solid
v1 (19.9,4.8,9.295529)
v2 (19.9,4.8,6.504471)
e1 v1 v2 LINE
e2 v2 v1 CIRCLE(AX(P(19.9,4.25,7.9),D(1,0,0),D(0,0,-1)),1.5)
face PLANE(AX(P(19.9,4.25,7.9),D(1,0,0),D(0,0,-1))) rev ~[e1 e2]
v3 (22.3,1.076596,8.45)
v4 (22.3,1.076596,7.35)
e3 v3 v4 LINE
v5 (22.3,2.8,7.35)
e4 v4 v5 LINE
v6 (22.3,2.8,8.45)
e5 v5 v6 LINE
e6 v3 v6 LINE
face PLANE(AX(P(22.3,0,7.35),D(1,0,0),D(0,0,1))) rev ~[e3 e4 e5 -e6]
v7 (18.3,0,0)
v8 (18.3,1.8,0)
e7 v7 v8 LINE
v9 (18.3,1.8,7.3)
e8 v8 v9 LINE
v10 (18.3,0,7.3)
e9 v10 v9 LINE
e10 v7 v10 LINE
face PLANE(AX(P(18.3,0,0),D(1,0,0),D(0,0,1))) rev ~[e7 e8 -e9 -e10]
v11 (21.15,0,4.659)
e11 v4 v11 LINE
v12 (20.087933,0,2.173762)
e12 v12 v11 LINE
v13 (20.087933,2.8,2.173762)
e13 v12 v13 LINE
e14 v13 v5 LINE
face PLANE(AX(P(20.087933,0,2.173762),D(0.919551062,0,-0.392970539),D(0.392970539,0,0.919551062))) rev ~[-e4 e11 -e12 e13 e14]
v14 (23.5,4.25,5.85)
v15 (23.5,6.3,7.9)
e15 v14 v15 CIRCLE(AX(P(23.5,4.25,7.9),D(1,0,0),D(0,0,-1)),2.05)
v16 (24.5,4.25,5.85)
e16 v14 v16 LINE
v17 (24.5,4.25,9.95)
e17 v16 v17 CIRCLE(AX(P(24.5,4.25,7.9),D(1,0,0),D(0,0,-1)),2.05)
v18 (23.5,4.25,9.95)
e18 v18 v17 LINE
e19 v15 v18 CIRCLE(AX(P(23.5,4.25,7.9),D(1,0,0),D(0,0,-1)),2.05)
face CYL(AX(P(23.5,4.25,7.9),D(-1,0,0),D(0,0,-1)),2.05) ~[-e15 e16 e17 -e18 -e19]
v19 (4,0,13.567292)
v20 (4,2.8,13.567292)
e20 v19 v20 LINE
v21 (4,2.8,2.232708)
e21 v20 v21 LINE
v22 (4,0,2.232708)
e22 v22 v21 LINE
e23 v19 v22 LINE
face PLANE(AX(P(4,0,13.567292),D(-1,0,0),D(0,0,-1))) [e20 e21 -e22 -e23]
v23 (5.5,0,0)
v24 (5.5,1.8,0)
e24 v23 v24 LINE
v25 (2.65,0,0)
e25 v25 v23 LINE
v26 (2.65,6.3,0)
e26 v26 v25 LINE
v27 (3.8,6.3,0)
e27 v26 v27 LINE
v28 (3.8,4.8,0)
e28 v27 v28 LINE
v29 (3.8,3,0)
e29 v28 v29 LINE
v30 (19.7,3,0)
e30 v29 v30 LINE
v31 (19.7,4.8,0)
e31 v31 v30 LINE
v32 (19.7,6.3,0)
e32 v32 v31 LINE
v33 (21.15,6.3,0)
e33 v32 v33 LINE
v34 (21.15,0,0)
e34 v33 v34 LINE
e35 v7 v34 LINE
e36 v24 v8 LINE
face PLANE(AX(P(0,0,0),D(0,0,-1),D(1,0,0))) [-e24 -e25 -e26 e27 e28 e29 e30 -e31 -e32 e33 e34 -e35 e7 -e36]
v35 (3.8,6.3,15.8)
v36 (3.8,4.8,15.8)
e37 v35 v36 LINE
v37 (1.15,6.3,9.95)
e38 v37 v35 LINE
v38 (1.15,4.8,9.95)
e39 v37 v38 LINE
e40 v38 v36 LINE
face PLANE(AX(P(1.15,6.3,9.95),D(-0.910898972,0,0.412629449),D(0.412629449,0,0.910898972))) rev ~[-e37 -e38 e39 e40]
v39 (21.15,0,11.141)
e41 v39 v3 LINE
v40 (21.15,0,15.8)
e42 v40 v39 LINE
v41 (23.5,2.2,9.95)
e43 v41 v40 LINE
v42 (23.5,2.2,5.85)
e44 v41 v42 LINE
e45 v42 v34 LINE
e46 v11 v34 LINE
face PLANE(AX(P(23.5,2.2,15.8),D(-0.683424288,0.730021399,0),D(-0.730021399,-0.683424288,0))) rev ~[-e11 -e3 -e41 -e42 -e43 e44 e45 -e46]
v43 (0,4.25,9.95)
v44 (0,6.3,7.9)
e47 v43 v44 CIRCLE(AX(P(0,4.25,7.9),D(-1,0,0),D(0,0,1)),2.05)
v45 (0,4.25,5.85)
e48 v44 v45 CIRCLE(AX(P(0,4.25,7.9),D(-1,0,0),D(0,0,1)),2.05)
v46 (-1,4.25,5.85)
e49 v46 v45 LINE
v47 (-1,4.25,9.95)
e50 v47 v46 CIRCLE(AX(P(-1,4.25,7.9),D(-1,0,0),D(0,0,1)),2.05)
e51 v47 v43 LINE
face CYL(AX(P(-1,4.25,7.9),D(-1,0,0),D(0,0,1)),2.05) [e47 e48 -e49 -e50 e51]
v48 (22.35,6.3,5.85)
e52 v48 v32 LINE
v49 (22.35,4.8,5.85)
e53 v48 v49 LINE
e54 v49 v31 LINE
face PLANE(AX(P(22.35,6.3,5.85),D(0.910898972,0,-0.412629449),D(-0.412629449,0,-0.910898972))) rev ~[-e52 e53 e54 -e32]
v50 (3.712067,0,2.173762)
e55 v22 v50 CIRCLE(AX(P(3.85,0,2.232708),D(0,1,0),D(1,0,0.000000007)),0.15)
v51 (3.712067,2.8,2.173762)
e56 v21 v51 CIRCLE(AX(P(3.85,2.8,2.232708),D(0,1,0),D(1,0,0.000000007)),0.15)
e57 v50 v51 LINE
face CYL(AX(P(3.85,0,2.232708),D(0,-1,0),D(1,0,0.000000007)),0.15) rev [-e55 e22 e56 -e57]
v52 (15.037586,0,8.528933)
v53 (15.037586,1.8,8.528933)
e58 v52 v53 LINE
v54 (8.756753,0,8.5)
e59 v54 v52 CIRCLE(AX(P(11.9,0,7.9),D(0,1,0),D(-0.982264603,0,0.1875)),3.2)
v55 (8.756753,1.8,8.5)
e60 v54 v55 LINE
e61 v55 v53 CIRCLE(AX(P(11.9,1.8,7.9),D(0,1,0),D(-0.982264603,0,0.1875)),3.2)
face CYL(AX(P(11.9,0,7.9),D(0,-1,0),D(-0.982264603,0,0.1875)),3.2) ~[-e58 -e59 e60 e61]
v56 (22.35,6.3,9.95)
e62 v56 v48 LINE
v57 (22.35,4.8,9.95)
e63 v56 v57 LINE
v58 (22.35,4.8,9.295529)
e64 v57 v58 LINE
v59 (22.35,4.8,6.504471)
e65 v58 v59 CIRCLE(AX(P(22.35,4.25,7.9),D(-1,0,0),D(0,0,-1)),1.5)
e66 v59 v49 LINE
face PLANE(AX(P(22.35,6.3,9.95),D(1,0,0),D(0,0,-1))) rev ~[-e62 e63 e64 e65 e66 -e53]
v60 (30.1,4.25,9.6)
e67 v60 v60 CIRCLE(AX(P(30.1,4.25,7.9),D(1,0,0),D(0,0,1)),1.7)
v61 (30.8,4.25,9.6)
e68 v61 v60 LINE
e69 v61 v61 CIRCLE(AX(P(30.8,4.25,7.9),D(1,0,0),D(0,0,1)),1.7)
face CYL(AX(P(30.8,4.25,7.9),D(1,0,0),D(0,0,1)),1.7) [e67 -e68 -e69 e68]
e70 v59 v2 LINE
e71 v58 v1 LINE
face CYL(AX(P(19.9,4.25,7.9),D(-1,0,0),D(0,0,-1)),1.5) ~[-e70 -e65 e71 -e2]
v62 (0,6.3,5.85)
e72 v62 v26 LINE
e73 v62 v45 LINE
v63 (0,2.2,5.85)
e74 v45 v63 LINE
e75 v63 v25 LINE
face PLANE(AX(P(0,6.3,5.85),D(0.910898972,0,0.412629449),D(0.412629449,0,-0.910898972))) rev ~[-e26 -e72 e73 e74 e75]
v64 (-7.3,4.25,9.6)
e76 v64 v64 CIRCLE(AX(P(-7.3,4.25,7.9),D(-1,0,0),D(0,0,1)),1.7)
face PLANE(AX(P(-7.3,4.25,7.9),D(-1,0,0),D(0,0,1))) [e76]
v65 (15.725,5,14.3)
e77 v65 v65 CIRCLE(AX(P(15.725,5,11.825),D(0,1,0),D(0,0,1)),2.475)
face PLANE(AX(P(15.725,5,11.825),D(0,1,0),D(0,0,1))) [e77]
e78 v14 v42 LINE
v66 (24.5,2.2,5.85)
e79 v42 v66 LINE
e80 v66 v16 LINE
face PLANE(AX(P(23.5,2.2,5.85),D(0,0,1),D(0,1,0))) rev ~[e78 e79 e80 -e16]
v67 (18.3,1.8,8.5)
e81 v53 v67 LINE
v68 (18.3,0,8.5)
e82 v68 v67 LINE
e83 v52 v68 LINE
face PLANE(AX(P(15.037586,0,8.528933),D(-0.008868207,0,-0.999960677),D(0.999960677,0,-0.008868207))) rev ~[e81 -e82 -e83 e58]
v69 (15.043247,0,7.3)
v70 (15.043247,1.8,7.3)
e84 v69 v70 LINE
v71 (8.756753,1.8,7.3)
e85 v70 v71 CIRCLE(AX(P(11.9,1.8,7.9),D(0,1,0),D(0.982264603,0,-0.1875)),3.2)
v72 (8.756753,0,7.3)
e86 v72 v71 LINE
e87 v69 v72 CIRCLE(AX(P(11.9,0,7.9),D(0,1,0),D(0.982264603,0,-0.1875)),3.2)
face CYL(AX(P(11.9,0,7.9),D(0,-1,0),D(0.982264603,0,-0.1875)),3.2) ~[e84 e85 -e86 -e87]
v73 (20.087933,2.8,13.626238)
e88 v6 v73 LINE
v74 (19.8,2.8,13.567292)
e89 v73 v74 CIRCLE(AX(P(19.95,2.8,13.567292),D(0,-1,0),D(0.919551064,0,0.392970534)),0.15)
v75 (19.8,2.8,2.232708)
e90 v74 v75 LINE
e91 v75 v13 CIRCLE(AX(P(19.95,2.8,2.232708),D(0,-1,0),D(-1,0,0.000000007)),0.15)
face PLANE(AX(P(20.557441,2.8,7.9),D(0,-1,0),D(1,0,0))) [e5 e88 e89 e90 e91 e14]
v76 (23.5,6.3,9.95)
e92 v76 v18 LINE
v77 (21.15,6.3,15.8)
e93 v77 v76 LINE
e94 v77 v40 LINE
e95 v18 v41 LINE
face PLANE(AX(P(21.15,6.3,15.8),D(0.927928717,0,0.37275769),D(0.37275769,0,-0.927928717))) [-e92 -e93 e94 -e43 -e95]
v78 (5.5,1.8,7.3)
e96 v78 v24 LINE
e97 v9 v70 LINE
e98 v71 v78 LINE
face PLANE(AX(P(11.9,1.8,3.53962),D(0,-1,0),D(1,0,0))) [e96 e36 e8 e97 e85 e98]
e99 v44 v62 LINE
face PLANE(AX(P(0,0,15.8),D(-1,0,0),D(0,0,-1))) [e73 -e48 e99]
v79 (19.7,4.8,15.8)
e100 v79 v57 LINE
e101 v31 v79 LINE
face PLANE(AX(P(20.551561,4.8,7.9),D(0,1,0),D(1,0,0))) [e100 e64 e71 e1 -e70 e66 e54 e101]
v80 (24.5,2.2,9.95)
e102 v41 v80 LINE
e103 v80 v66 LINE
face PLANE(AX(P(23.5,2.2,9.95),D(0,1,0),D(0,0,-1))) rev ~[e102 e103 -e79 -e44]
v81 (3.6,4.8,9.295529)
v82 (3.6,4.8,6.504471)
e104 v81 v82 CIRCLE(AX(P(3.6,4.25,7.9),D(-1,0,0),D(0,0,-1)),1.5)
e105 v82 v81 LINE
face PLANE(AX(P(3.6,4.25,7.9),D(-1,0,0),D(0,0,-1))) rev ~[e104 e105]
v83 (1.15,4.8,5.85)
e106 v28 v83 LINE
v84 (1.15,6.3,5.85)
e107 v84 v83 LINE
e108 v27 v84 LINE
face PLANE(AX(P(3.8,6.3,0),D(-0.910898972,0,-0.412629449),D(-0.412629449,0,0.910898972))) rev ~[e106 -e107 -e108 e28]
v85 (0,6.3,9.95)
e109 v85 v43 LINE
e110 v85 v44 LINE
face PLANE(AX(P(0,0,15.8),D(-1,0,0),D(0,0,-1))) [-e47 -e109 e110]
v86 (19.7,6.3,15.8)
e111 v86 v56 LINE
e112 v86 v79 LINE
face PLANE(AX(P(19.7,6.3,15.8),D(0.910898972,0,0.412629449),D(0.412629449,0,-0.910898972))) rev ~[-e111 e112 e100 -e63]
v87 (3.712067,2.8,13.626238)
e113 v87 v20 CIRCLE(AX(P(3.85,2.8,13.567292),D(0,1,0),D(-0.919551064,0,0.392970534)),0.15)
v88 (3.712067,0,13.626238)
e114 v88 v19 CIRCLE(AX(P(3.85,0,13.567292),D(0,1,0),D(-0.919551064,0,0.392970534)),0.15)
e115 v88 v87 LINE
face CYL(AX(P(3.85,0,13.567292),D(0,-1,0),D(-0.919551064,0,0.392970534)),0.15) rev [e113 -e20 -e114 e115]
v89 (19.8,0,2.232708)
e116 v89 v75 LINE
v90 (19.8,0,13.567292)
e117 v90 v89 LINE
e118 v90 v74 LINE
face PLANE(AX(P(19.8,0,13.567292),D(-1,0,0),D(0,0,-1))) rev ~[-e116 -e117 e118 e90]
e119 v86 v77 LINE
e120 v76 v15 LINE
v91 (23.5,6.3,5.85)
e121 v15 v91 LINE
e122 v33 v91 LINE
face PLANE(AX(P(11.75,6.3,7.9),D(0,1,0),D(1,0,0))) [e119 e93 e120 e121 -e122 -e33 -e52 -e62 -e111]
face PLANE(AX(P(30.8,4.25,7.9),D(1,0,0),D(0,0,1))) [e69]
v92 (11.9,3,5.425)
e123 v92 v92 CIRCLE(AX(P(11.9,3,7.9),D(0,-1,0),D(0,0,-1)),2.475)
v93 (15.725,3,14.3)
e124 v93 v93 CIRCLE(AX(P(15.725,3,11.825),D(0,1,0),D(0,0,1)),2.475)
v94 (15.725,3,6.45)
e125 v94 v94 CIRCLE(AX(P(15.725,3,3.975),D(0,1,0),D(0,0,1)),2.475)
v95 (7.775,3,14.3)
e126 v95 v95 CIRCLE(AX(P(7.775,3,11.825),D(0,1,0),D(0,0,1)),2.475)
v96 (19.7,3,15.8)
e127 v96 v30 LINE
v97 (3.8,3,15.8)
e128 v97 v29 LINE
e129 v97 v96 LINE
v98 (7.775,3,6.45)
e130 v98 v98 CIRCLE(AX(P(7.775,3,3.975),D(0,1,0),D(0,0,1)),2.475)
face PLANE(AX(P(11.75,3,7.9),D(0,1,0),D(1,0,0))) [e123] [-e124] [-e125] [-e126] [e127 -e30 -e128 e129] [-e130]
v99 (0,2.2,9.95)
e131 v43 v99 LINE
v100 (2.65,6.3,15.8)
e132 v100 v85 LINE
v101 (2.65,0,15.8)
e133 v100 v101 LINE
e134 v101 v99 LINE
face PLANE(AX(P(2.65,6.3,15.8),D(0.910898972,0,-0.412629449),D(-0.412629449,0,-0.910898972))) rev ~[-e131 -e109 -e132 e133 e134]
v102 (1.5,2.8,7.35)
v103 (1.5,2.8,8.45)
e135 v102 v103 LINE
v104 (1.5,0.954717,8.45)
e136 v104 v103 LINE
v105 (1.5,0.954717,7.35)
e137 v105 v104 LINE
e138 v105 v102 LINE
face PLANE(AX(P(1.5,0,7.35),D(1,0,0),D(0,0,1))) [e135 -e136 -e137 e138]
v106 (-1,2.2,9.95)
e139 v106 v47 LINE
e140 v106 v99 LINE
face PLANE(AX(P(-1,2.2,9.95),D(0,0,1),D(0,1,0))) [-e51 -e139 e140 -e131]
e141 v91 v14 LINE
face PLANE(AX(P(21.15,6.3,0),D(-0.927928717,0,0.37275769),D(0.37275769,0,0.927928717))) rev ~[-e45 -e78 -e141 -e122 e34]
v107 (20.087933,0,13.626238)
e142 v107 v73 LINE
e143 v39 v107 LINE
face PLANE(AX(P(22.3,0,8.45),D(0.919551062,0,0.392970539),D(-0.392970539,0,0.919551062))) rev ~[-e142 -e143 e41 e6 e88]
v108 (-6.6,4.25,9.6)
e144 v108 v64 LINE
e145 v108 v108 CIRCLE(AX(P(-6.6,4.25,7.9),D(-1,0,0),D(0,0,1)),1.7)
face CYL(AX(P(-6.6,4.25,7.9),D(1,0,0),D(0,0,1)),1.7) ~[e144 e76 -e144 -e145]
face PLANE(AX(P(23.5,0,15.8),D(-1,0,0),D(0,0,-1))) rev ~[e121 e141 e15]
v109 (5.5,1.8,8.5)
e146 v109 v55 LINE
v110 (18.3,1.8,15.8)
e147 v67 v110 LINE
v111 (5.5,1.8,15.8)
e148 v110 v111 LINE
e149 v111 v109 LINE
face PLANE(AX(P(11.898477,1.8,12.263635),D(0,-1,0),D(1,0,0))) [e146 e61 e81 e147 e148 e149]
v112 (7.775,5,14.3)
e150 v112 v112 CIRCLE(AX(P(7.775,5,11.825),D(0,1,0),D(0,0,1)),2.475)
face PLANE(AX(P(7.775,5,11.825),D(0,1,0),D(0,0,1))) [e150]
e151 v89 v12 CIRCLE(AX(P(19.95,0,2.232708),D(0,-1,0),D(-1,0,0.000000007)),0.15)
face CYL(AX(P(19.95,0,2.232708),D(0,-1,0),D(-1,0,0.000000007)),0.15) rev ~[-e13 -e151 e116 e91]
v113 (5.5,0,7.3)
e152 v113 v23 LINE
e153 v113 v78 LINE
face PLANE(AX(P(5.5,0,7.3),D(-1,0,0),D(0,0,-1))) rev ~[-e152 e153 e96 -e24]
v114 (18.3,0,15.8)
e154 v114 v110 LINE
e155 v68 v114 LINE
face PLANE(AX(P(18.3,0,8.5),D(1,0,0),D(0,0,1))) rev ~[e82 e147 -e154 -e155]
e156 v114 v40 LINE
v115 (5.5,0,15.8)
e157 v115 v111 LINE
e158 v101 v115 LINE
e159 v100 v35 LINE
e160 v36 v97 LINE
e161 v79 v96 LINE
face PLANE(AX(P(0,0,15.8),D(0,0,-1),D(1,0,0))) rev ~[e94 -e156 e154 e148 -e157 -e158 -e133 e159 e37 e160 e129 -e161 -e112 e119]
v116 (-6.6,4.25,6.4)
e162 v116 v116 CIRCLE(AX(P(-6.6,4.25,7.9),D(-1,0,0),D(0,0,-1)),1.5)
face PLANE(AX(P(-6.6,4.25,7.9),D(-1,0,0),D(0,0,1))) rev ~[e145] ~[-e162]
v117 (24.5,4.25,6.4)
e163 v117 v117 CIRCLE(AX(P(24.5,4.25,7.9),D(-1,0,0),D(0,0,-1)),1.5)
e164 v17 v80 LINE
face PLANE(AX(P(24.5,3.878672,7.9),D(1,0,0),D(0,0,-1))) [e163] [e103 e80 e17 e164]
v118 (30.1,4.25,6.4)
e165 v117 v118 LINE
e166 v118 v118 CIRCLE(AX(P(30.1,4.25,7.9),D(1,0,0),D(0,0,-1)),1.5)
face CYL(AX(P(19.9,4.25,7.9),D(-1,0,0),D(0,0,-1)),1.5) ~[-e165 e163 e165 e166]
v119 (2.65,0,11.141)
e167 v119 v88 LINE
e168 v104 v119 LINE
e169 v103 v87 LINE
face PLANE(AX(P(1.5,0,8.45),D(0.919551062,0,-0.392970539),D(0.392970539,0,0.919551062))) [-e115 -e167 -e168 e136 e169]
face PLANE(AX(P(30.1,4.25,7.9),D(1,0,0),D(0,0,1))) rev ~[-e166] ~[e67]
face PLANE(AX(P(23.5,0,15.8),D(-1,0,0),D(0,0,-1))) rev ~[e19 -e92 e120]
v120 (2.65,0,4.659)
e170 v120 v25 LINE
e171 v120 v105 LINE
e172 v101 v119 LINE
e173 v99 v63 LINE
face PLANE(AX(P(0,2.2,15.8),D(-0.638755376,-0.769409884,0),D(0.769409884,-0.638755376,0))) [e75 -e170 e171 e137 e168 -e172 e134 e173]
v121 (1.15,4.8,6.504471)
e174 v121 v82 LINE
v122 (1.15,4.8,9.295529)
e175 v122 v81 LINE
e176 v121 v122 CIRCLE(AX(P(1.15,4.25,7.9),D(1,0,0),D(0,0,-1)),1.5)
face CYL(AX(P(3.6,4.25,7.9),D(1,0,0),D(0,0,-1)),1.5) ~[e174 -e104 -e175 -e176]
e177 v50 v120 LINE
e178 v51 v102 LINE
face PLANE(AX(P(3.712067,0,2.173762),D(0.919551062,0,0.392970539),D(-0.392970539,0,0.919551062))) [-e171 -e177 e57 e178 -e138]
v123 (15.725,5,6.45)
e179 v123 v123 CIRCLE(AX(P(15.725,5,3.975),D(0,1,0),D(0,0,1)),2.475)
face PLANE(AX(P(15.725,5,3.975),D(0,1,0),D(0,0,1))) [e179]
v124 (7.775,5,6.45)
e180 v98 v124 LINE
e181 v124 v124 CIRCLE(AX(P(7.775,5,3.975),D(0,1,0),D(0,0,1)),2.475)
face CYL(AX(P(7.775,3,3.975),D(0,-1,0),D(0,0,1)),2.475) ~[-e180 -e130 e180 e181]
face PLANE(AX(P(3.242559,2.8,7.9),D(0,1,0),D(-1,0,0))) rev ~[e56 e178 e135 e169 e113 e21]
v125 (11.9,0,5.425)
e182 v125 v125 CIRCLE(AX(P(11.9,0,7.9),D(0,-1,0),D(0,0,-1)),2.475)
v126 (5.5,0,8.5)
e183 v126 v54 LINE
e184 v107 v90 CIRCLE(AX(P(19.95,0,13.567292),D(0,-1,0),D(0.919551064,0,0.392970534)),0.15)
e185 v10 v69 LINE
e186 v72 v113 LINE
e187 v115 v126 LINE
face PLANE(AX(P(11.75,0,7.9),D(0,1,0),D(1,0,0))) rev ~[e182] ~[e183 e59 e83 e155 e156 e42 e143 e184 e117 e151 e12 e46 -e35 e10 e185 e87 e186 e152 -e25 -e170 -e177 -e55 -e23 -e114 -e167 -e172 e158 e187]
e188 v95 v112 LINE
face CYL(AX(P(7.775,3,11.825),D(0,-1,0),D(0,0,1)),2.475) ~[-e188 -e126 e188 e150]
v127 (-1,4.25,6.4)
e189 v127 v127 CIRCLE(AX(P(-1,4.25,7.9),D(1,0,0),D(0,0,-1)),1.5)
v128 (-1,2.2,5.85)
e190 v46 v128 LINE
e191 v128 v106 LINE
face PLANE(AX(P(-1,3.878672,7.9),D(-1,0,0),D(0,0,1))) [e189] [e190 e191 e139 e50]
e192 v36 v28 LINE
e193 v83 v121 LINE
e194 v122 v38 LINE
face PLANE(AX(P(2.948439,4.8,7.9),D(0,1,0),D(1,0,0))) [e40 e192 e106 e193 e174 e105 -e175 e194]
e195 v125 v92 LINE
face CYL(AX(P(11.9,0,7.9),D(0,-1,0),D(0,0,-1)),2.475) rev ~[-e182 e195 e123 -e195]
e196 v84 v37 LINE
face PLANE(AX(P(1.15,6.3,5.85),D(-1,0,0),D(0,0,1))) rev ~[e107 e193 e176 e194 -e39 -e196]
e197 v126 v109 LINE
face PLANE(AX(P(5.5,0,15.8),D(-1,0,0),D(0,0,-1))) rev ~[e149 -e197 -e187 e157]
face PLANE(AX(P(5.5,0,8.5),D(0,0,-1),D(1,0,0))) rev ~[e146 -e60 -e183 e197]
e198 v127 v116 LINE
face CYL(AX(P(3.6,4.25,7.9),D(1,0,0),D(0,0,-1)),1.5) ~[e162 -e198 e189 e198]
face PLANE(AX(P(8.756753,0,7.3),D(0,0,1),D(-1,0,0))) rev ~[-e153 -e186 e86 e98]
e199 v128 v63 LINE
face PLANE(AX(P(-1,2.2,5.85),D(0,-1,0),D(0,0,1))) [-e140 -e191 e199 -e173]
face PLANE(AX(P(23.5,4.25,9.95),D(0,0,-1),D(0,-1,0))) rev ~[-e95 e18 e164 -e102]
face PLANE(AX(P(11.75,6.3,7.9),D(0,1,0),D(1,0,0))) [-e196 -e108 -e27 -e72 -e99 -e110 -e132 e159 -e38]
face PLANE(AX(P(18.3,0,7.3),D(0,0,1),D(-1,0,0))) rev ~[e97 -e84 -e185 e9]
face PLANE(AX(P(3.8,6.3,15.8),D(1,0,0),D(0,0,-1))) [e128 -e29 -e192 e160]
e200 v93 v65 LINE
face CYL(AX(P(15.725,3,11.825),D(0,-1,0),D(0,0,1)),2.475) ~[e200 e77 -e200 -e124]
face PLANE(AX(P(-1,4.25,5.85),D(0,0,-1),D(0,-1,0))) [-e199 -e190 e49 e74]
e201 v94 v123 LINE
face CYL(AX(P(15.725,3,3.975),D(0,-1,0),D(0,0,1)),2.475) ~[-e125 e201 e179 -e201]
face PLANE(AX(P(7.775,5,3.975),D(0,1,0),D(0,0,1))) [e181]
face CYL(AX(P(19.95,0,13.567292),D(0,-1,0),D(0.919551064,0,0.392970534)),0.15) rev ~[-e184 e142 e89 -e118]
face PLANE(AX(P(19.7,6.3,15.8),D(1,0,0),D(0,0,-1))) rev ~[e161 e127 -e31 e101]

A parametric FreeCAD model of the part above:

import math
import FreeCAD as App
import Part
import Sketcher

V = App.Vector
Q = App.Units.Quantity


def add_polygon(sketch, points):
    """Adds a closed chain of lines whose ends are joined by coincident constraints."""
    first, n = sketch.GeometryCount, len(points)
    for a, b in zip(points, points[1:] + points[:1]):
        sketch.addGeometry(Part.LineSegment(App.Vector(*a, 0), App.Vector(*b, 0)), False)
    for i in range(n):
        sketch.addConstraint(Sketcher.Constraint("Coincident", first + i, 2, first + (i + 1) % n, 1))

doc = App.newDocument("Part")
body = doc.addObject("PartDesign::Body", "Body")

sketch1 = body.newObject("Sketcher::SketchObject", "Sketch")
sketch1.AttachmentSupport = (doc.getObject("XZ_Plane"), [""])
sketch1.MapMode = "FlatFace"
add_polygon(sketch1, [(0, 0), (0, 15.8), (23.5, 15.8), (23.5, 0)])
sketch1.addConstraint([
    Sketcher.Constraint("Vertical", 0),
    Sketcher.Constraint("Horizontal", 1),
    Sketcher.Constraint("Vertical", 2),
    Sketcher.Constraint("Horizontal", 3),
    Sketcher.Constraint("Coincident", 3, 2, -1, 1),
    Sketcher.Constraint("DistanceX", 1, 1, 1, 2, Q("23.5 mm")),
    Sketcher.Constraint("DistanceY", 0, 1, 0, 2, Q("15.8 mm")),
])
pad1 = body.newObject("PartDesign::Pad", "Pad")
pad1.Profile = sketch1
pad1.Length = 6.3
pad1.Reversed = True

sketch2 = body.newObject("Sketcher::SketchObject", "Sketch001")
sketch2.AttachmentSupport = (doc.getObject("XZ_Plane"), [""])
sketch2.MapMode = "FlatFace"
sketch2.AttachmentOffset = App.Placement(V(0, 0, -6.3), App.Rotation())
add_polygon(sketch2, [(3.8, 0), (3.8, 15.8), (19.7, 15.8), (19.7, 0)])
sketch2.addConstraint([
    Sketcher.Constraint("Vertical", 0),
    Sketcher.Constraint("Horizontal", 1),
    Sketcher.Constraint("Vertical", 2),
    Sketcher.Constraint("Horizontal", 3),
    Sketcher.Constraint("PointOnObject", 2, 2, -1),
    Sketcher.Constraint("DistanceX", 1, 1, 1, 2, Q("15.9 mm")),
    Sketcher.Constraint("DistanceY", 0, 1, 0, 2, Q("15.8 mm")),
    Sketcher.Constraint("DistanceX", -1, 1, 0, 2, Q("3.8 mm")),
])
pocket1 = body.newObject("PartDesign::Pocket", "Pocket")
pocket1.Profile = sketch2
pocket1.Length = 3.3
pocket1.Reversed = True

sketch3 = body.newObject("Sketcher::SketchObject", "Sketch002")
sketch3.AttachmentSupport = (doc.getObject("XZ_Plane"), [""])
sketch3.MapMode = "FlatFace"
sketch3.AttachmentOffset = App.Placement(V(0, 0, -6.3), App.Rotation())
add_polygon(sketch3, [(21.15, 0), (23.5, 5.85), (23.5, 0)])
add_polygon(sketch3, [(23.5, 9.95), (21.15, 15.8), (23.5, 15.8)])
add_polygon(sketch3, [(2.65, 15.8), (0, 9.95), (0, 15.8)])
add_polygon(sketch3, [(0, 0), (0, 5.85), (2.65, 0)])
sketch3.addConstraint([
    Sketcher.Constraint("Vertical", 1),
    Sketcher.Constraint("Horizontal", 2),
    Sketcher.Constraint("Horizontal", 4),
    Sketcher.Constraint("Vertical", 5),
    Sketcher.Constraint("Vertical", 7),
    Sketcher.Constraint("Horizontal", 8),
    Sketcher.Constraint("Vertical", 9),
    Sketcher.Constraint("Horizontal", 11),
    Sketcher.Constraint("Coincident", 11, 2, -1, 1),
    Sketcher.Constraint("PointOnObject", 1, 2, -1),
    Sketcher.Constraint("PointOnObject", 6, 2, -2),
    Sketcher.Constraint("Horizontal", 5, 2, 6, 2),
    Sketcher.Constraint("Horizontal", 4, 2, 7, 2),
    Sketcher.Constraint("Horizontal", 0, 2, 9, 2),
    Sketcher.Constraint("Vertical", 2, 2, 3, 2),
    Sketcher.Constraint("Vertical", 1, 2, 4, 2),
    Sketcher.Constraint("Vertical", 8, 2, 10, 2),
    Sketcher.Constraint("Equal", 1, 5),
    Sketcher.Constraint("DistanceX", 2, 2, 2, 1, Q("2.35 mm")),
    Sketcher.Constraint("DistanceX", 8, 1, 8, 2, Q("2.65 mm")),
    Sketcher.Constraint("DistanceY", 1, 2, 1, 1, Q("5.85 mm")),
    Sketcher.Constraint("DistanceX", -1, 1, 0, 2, Q("23.5 mm")),
    Sketcher.Constraint("DistanceY", -1, 1, 3, 2, Q("15.8 mm")),
])
pocket2 = body.newObject("PartDesign::Pocket", "Pocket001")
pocket2.Profile = sketch3
pocket2.Type = "ThroughAll"
pocket2.Reversed = True

sketch4 = body.newObject("Sketcher::SketchObject", "Sketch003")
sketch4.AttachmentSupport = (doc.getObject("XZ_Plane"), [""])
sketch4.MapMode = "FlatFace"
sketch4.AttachmentOffset = App.Placement(V(0, 0, -6.3), App.Rotation())
add_polygon(sketch4, [(3.8, 0), (1.15, 5.85), (1.15, 9.95), (3.8, 15.8)])
add_polygon(sketch4, [(19.7, 0), (19.7, 15.8), (22.35, 9.95), (22.35, 5.85)])
sketch4.addConstraint([
    Sketcher.Constraint("Vertical", 1),
    Sketcher.Constraint("Vertical", 3),
    Sketcher.Constraint("Vertical", 4),
    Sketcher.Constraint("Vertical", 6),
    Sketcher.Constraint("PointOnObject", 3, 2, -1),
    Sketcher.Constraint("PointOnObject", 7, 2, -1),
    Sketcher.Constraint("Parallel", 0, 5),
    Sketcher.Constraint("Parallel", 2, 7),
    Sketcher.Constraint("Horizontal", 2, 2, 4, 2),
    Sketcher.Constraint("Horizontal", 1, 2, 5, 2),
    Sketcher.Constraint("Horizontal", 0, 2, 6, 2),
    Sketcher.Constraint("DistanceY", 1, 1, 1, 2, Q("4.1 mm")),
    Sketcher.Constraint("DistanceY", 3, 2, 3, 1, Q("15.8 mm")),
    Sketcher.Constraint("DistanceX", -1, 1, 2, 2, Q("3.8 mm")),
    Sketcher.Constraint("DistanceX", -1, 1, 4, 2, Q("19.7 mm")),
    Sketcher.Constraint("DistanceX", 1, 2, 5, 2, Q("21.2 mm")),
])
pocket3 = body.newObject("PartDesign::Pocket", "Pocket002")
pocket3.Profile = sketch4
pocket3.Length = 1.5
pocket3.Reversed = True

sketch5 = body.newObject("Sketcher::SketchObject", "Sketch004")
sketch5.AttachmentSupport = (doc.getObject("XY_Plane"), [""])
sketch5.MapMode = "FlatFace"
sketch5.AttachmentOffset = App.Placement(V(0, 0, 15.8), App.Rotation())
add_polygon(sketch5, [(0, 2.2), (0, 0), (2.65, 0)])
add_polygon(sketch5, [(21.15, 0), (23.5, 0), (23.5, 2.2)])
sketch5.addConstraint([
    Sketcher.Constraint("Vertical", 0),
    Sketcher.Constraint("Horizontal", 1),
    Sketcher.Constraint("Horizontal", 3),
    Sketcher.Constraint("Vertical", 4),
    Sketcher.Constraint("Coincident", 0, 2, -1, 1),
    Sketcher.Constraint("PointOnObject", 3, 2, -1),
    Sketcher.Constraint("Horizontal", 2, 2, 4, 2),
    Sketcher.Constraint("DistanceY", 0, 2, 0, 1, Q("2.2 mm")),
    Sketcher.Constraint("DistanceX", 1, 1, 1, 2, Q("2.65 mm")),
    Sketcher.Constraint("DistanceX", 3, 1, 3, 2, Q("2.35 mm")),
    Sketcher.Constraint("DistanceX", -1, 1, 3, 2, Q("23.5 mm")),
])
pocket4 = body.newObject("PartDesign::Pocket", "Pocket003")
pocket4.Profile = sketch5
pocket4.Type = "ThroughAll"

sketch6 = body.newObject("Sketcher::SketchObject", "Sketch005")
sketch6.AttachmentSupport = (doc.getObject("YZ_Plane"), [""])
sketch6.MapMode = "FlatFace"
sketch6.AttachmentOffset = App.Placement(V(0, 0, 23.5), App.Rotation())
sketch6.addGeometry([
    Part.LineSegment(V(4.25, 9.95, 0), V(2.2, 9.95, 0)),
    Part.LineSegment(V(2.2, 9.95, 0), V(2.2, 5.85, 0)),
    Part.LineSegment(V(2.2, 5.85, 0), V(4.25, 5.85, 0)),
    Part.ArcOfCircle(Part.Circle(V(4.25, 7.9, 0), V(0, 0, 1), 2.05), math.radians(-90), math.radians(90)),
], False)
sketch6.addConstraint([
    Sketcher.Constraint("Coincident", 0, 2, 1, 1),
    Sketcher.Constraint("Coincident", 1, 2, 2, 1),
    Sketcher.Constraint("Tangent", 2, 2, 3, 1),
    Sketcher.Constraint("Tangent", 3, 2, 0, 1),
    Sketcher.Constraint("Horizontal", 0),
    Sketcher.Constraint("Vertical", 1),
    Sketcher.Constraint("Horizontal", 2),
    Sketcher.Constraint("Radius", 3, Q("2.05 mm")),
    Sketcher.Constraint("DistanceX", 0, 2, 0, 1, Q("2.05 mm")),
    Sketcher.Constraint("DistanceY", -1, 1, 3, 3, Q("7.9 mm")),
    Sketcher.Constraint("DistanceX", -1, 1, 0, 2, Q("2.2 mm")),
])
pad2 = body.newObject("PartDesign::Pad", "Pad001")
pad2.Profile = sketch6
pad2.Length = 1

sketch7 = body.newObject("Sketcher::SketchObject", "Sketch006")
sketch7.AttachmentSupport = (doc.getObject("YZ_Plane"), [""])
sketch7.MapMode = "FlatFace"
sketch7.AttachmentOffset = App.Placement(V(0, 0, 24.5), App.Rotation())
sketch7.addGeometry(Part.Circle(V(4.25, 7.9, 0), V(0, 0, 1), 1.5), False)
sketch7.addConstraint([
    Sketcher.Constraint("Diameter", 0, Q("3 mm")),
    Sketcher.Constraint("DistanceY", -1, 1, 0, 3, Q("7.9 mm")),
    Sketcher.Constraint("DistanceX", -1, 1, 0, 3, Q("4.25 mm")),
])
pad3 = body.newObject("PartDesign::Pad", "Pad002")
pad3.Profile = sketch7
pad3.Type = "TwoLengths"
pad3.Length = 5.6
pad3.Length2 = 4.6

sketch8 = body.newObject("Sketcher::SketchObject", "Sketch007")
sketch8.AttachmentSupport = (doc.getObject("YZ_Plane"), [""])
sketch8.MapMode = "FlatFace"
sketch8.AttachmentOffset = App.Placement(V(0, 0, -1), App.Rotation())
sketch8.addGeometry([
    Part.LineSegment(V(2.2, 5.85, 0), V(2.2, 9.95, 0)),
    Part.LineSegment(V(2.2, 9.95, 0), V(4.25, 9.95, 0)),
    Part.ArcOfCircle(Part.Circle(V(4.25, 7.9, 0), V(0, 0, 1), 2.05), math.radians(-90), math.radians(90)),
    Part.LineSegment(V(4.25, 5.85, 0), V(2.2, 5.85, 0)),
], False)
sketch8.addConstraint([
    Sketcher.Constraint("Coincident", 0, 2, 1, 1),
    Sketcher.Constraint("Tangent", 1, 2, 2, 2),
    Sketcher.Constraint("Tangent", 2, 1, 3, 1),
    Sketcher.Constraint("Coincident", 3, 2, 0, 1),
    Sketcher.Constraint("Vertical", 0),
    Sketcher.Constraint("Horizontal", 1),
    Sketcher.Constraint("Horizontal", 3),
    Sketcher.Constraint("Radius", 2, Q("2.05 mm")),
    Sketcher.Constraint("DistanceX", 1, 1, 1, 2, Q("2.05 mm")),
    Sketcher.Constraint("DistanceY", -1, 1, 2, 3, Q("7.9 mm")),
    Sketcher.Constraint("DistanceX", -1, 1, 0, 2, Q("2.2 mm")),
])
pad4 = body.newObject("PartDesign::Pad", "Pad003")
pad4.Profile = sketch8
pad4.Length = 1

sketch9 = body.newObject("Sketcher::SketchObject", "Sketch008")
sketch9.AttachmentSupport = (doc.getObject("YZ_Plane"), [""])
sketch9.MapMode = "FlatFace"
sketch9.AttachmentOffset = App.Placement(V(0, 0, -1), App.Rotation())
sketch9.addGeometry(Part.Circle(V(4.25, 7.9, 0), V(0, 0, 1), 1.5), False)
sketch9.addConstraint([
    Sketcher.Constraint("Diameter", 0, Q("3 mm")),
    Sketcher.Constraint("DistanceY", -1, 1, 0, 3, Q("7.9 mm")),
    Sketcher.Constraint("DistanceX", -1, 1, 0, 3, Q("4.25 mm")),
])
pad5 = body.newObject("PartDesign::Pad", "Pad004")
pad5.Profile = sketch9
pad5.Type = "TwoLengths"
pad5.Length = 5.6
pad5.Length2 = 4.6
pad5.Reversed = True

sketch10 = body.newObject("Sketcher::SketchObject", "Sketch009")
sketch10.AttachmentSupport = (doc.getObject("XZ_Plane"), [""])
sketch10.MapMode = "FlatFace"
sketch10.addGeometry([
    Part.LineSegment(V(18.3, 15.8, 0), V(5.5, 15.8, 0)),
    Part.LineSegment(V(5.5, 15.8, 0), V(5.5, 8.5, 0)),
    Part.LineSegment(V(5.5, 8.5, 0), V(8.756753, 8.5, 0)),
    Part.ArcOfCircle(Part.Circle(V(11.9, 7.9, 0), V(0, 0, 1), 3.2), math.radians(11.33479), math.radians(169.193077)),
    Part.LineSegment(V(15.037586, 8.528933, 0), V(18.3, 8.5, 0)),
    Part.LineSegment(V(18.3, 8.5, 0), V(18.3, 15.8, 0)),
    Part.LineSegment(V(8.756753, 7.3, 0), V(5.5, 7.3, 0)),
    Part.LineSegment(V(5.5, 7.3, 0), V(5.5, 0, 0)),
    Part.LineSegment(V(5.5, 0, 0), V(18.3, 0, 0)),
    Part.LineSegment(V(18.3, 0, 0), V(18.3, 7.3, 0)),
    Part.LineSegment(V(18.3, 7.3, 0), V(15.043247, 7.3, 0)),
    Part.ArcOfCircle(Part.Circle(V(11.9, 7.9, 0), V(0, 0, 1), 3.2), math.radians(-169.193077), math.radians(-10.806923)),
], False)
sketch10.addConstraint([
    Sketcher.Constraint("Coincident", 0, 2, 1, 1),
    Sketcher.Constraint("Coincident", 1, 2, 2, 1),
    Sketcher.Constraint("Coincident", 2, 2, 3, 2),
    Sketcher.Constraint("Coincident", 3, 1, 4, 1),
    Sketcher.Constraint("Coincident", 4, 2, 5, 1),
    Sketcher.Constraint("Coincident", 5, 2, 0, 1),
    Sketcher.Constraint("Coincident", 6, 2, 7, 1),
    Sketcher.Constraint("Coincident", 7, 2, 8, 1),
    Sketcher.Constraint("Coincident", 8, 2, 9, 1),
    Sketcher.Constraint("Coincident", 9, 2, 10, 1),
    Sketcher.Constraint("Coincident", 10, 2, 11, 2),
    Sketcher.Constraint("Coincident", 11, 1, 6, 1),
    Sketcher.Constraint("Horizontal", 0),
    Sketcher.Constraint("Vertical", 1),
    Sketcher.Constraint("Horizontal", 2),
    Sketcher.Constraint("Vertical", 5),
    Sketcher.Constraint("Horizontal", 6),
    Sketcher.Constraint("Vertical", 7),
    Sketcher.Constraint("Horizontal", 8),
    Sketcher.Constraint("Vertical", 9),
    Sketcher.Constraint("Horizontal", 10),
    Sketcher.Constraint("Coincident", 11, 3, 3, 3),
    Sketcher.Constraint("Equal", 3, 11),
    Sketcher.Constraint("PointOnObject", 7, 2, -1),
    Sketcher.Constraint("Horizontal", 2, 2, 4, 2),
    Sketcher.Constraint("Horizontal", 6, 2, 9, 2),
    Sketcher.Constraint("Vertical", 1, 2, 6, 2),
    Sketcher.Constraint("Vertical", 5, 2, 8, 2),
    Sketcher.Constraint("Vertical", 2, 2, 11, 1),
    Sketcher.Constraint("Equal", 6, 10),
    Sketcher.Constraint("Equal", 5, 7),
    Sketcher.Constraint("Radius", 3, Q("3.2 mm")),
    Sketcher.Constraint("DistanceX", 0, 2, 0, 1, Q("12.8 mm")),
    Sketcher.Constraint("DistanceY", 1, 2, 1, 1, Q("7.3 mm")),
    Sketcher.Constraint("DistanceX", -1, 1, 3, 3, Q("11.9 mm")),
    Sketcher.Constraint("DistanceY", -1, 1, 3, 3, Q("7.9 mm")),
    Sketcher.Constraint("DistanceX", 3, 1, 10, 2, Q("0.005661 mm")),
])
pocket5 = body.newObject("PartDesign::Pocket", "Pocket004")
pocket5.Profile = sketch10
pocket5.Length = 1.8

sketch11 = body.newObject("Sketcher::SketchObject", "Sketch010")
sketch11.AttachmentSupport = (doc.getObject("XZ_Plane"), [""])
sketch11.MapMode = "FlatFace"
sketch11.addGeometry(Part.Circle(V(11.9, 7.9, 0), V(0, 0, 1), 2.475), False)
sketch11.addConstraint([
    Sketcher.Constraint("Diameter", 0, Q("4.95 mm")),
    Sketcher.Constraint("DistanceX", -1, 1, 0, 3, Q("11.9 mm")),
    Sketcher.Constraint("DistanceY", -1, 1, 0, 3, Q("7.9 mm")),
])
pocket6 = body.newObject("PartDesign::Pocket", "Pocket005")
pocket6.Profile = sketch11
pocket6.Type = "ThroughAll"

sketch12 = body.newObject("Sketcher::SketchObject", "Sketch011")
sketch12.AttachmentSupport = (doc.getObject("XZ_Plane"), [""])
sketch12.MapMode = "FlatFace"
sketch12.addGeometry([
    Part.LineSegment(V(4, 2.232708, 0), V(4, 13.567292, 0)),
    Part.ArcOfCircle(Part.Circle(V(3.85, 13.567292, 0), V(0, 0, 1), 0.15), math.radians(0), math.radians(156.860539)),
    Part.LineSegment(V(3.712067, 13.626238, 0), V(1.5, 8.45, 0)),
    Part.LineSegment(V(1.5, 8.45, 0), V(1.5, 7.35, 0)),
    Part.LineSegment(V(1.5, 7.35, 0), V(3.712067, 2.173762, 0)),
    Part.ArcOfCircle(Part.Circle(V(3.85, 2.232708, 0), V(0, 0, 1), 0.15), math.radians(-156.860539), math.radians(0)),
    Part.LineSegment(V(20.087933, 2.173762, 0), V(22.3, 7.35, 0)),
    Part.LineSegment(V(22.3, 7.35, 0), V(22.3, 8.45, 0)),
    Part.LineSegment(V(22.3, 8.45, 0), V(20.087933, 13.626238, 0)),
    Part.ArcOfCircle(Part.Circle(V(19.95, 13.567292, 0), V(0, 0, 1), 0.15), math.radians(23.139461), math.radians(180)),
    Part.LineSegment(V(19.8, 13.567292, 0), V(19.8, 2.232708, 0)),
    Part.ArcOfCircle(Part.Circle(V(19.95, 2.232708, 0), V(0, 0, 1), 0.15), math.radians(180), math.radians(336.860539)),
], False)
sketch12.addConstraint([
    Sketcher.Constraint("Tangent", 0, 2, 1, 1),
    Sketcher.Constraint("Tangent", 1, 2, 2, 1),
    Sketcher.Constraint("Coincident", 2, 2, 3, 1),
    Sketcher.Constraint("Coincident", 3, 2, 4, 1),
    Sketcher.Constraint("Tangent", 4, 2, 5, 1),
    Sketcher.Constraint("Tangent", 5, 2, 0, 1),
    Sketcher.Constraint("Coincident", 6, 2, 7, 1),
    Sketcher.Constraint("Coincident", 7, 2, 8, 1),
    Sketcher.Constraint("Tangent", 8, 2, 9, 1),
    Sketcher.Constraint("Tangent", 9, 2, 10, 1),
    Sketcher.Constraint("Tangent", 10, 2, 11, 1),
    Sketcher.Constraint("Tangent", 11, 2, 6, 1),
    Sketcher.Constraint("Vertical", 0),
    Sketcher.Constraint("Vertical", 3),
    Sketcher.Constraint("Vertical", 7),
    Sketcher.Constraint("Vertical", 10),
    Sketcher.Constraint("Equal", 1, 5),
    Sketcher.Constraint("Equal", 5, 9),
    Sketcher.Constraint("Equal", 9, 11),
    Sketcher.Constraint("Parallel", 2, 6),
    Sketcher.Constraint("Parallel", 4, 8),
    Sketcher.Constraint("Horizontal", 1, 3, 9, 3),
    Sketcher.Constraint("Horizontal", 5, 3, 11, 3),
    Sketcher.Constraint("Horizontal", 3, 2, 6, 2),
    Sketcher.Constraint("Horizontal", 2, 2, 7, 2),
    Sketcher.Constraint("Radius", 1, Q("0.15 mm")),
    Sketcher.Constraint("DistanceY", 3, 2, 3, 1, Q("1.1 mm")),
    Sketcher.Constraint("DistanceX", -1, 1, 0, 2, Q("4 mm")),
    Sketcher.Constraint("DistanceX", -1, 1, 2, 2, Q("1.5 mm")),
    Sketcher.Constraint("DistanceX", -1, 1, 6, 2, Q("22.3 mm")),
    Sketcher.Constraint("DistanceY", -1, 1, 2, 2, Q("8.45 mm")),
    Sketcher.Constraint("DistanceY", 0, 1, 0, 2, Q("11.334584 mm")),
])
pocket7 = body.newObject("PartDesign::Pocket", "Pocket006")
pocket7.Profile = sketch12
pocket7.Length = 2.8

sketch13 = body.newObject("Sketcher::SketchObject", "Sketch012")
sketch13.AttachmentSupport = (doc.getObject("YZ_Plane"), [""])
sketch13.MapMode = "FlatFace"
sketch13.AttachmentOffset = App.Placement(V(0, 0, -6.6), App.Rotation())
sketch13.addGeometry(Part.Circle(V(4.25, 7.9, 0), V(0, 0, 1), 1.7), False)
sketch13.addConstraint([
    Sketcher.Constraint("Diameter", 0, Q("3.4 mm")),
    Sketcher.Constraint("DistanceY", -1, 1, 0, 3, Q("7.9 mm")),
    Sketcher.Constraint("DistanceX", -1, 1, 0, 3, Q("4.25 mm")),
])
pad6 = body.newObject("PartDesign::Pad", "Pad005")
pad6.Profile = sketch13
pad6.Length = 0.7
pad6.Reversed = True

sketch14 = body.newObject("Sketcher::SketchObject", "Sketch013")
sketch14.AttachmentSupport = (doc.getObject("YZ_Plane"), [""])
sketch14.MapMode = "FlatFace"
sketch14.AttachmentOffset = App.Placement(V(0, 0, 30.8), App.Rotation())
sketch14.addGeometry(Part.Circle(V(4.25, 7.9, 0), V(0, 0, 1), 1.7), False)
sketch14.addConstraint([
    Sketcher.Constraint("Diameter", 0, Q("3.4 mm")),
    Sketcher.Constraint("DistanceY", -1, 1, 0, 3, Q("7.9 mm")),
    Sketcher.Constraint("DistanceX", -1, 1, 0, 3, Q("4.25 mm")),
])
pad7 = body.newObject("PartDesign::Pad", "Pad006")
pad7.Profile = sketch14
pad7.Length = 0.7
pad7.Reversed = True

sketch15 = body.newObject("Sketcher::SketchObject", "Sketch014")
sketch15.AttachmentSupport = (doc.getObject("XZ_Plane"), [""])
sketch15.MapMode = "FlatFace"
sketch15.AttachmentOffset = App.Placement(V(0, 0, -3), App.Rotation())
sketch15.addGeometry([
    Part.Circle(V(7.775, 3.975, 0), V(0, 0, 1), 2.475),
    Part.Circle(V(7.775, 11.825, 0), V(0, 0, 1), 2.475),
    Part.Circle(V(15.725, 11.825, 0), V(0, 0, 1), 2.475),
    Part.Circle(V(15.725, 3.975, 0), V(0, 0, 1), 2.475),
], False)
sketch15.addConstraint([
    Sketcher.Constraint("Equal", 0, 1),
    Sketcher.Constraint("Equal", 1, 2),
    Sketcher.Constraint("Equal", 2, 3),
    Sketcher.Constraint("Horizontal", 1, 3, 2, 3),
    Sketcher.Constraint("Horizontal", 0, 3, 3, 3),
    Sketcher.Constraint("Vertical", 0, 3, 1, 3),
    Sketcher.Constraint("Vertical", 2, 3, 3, 3),
    Sketcher.Constraint("Diameter", 0, Q("4.95 mm")),
    Sketcher.Constraint("DistanceY", 0, 3, 1, 3, Q("7.85 mm")),
    Sketcher.Constraint("DistanceX", 1, 3, 2, 3, Q("7.95 mm")),
    Sketcher.Constraint("DistanceX", -1, 1, 0, 3, Q("7.775 mm")),
    Sketcher.Constraint("DistanceY", -1, 1, 0, 3, Q("3.975 mm")),
])
pad8 = body.newObject("PartDesign::Pad", "Pad007")
pad8.Profile = sketch15
pad8.Length = 2
pad8.Reversed = True

doc.recompute()
